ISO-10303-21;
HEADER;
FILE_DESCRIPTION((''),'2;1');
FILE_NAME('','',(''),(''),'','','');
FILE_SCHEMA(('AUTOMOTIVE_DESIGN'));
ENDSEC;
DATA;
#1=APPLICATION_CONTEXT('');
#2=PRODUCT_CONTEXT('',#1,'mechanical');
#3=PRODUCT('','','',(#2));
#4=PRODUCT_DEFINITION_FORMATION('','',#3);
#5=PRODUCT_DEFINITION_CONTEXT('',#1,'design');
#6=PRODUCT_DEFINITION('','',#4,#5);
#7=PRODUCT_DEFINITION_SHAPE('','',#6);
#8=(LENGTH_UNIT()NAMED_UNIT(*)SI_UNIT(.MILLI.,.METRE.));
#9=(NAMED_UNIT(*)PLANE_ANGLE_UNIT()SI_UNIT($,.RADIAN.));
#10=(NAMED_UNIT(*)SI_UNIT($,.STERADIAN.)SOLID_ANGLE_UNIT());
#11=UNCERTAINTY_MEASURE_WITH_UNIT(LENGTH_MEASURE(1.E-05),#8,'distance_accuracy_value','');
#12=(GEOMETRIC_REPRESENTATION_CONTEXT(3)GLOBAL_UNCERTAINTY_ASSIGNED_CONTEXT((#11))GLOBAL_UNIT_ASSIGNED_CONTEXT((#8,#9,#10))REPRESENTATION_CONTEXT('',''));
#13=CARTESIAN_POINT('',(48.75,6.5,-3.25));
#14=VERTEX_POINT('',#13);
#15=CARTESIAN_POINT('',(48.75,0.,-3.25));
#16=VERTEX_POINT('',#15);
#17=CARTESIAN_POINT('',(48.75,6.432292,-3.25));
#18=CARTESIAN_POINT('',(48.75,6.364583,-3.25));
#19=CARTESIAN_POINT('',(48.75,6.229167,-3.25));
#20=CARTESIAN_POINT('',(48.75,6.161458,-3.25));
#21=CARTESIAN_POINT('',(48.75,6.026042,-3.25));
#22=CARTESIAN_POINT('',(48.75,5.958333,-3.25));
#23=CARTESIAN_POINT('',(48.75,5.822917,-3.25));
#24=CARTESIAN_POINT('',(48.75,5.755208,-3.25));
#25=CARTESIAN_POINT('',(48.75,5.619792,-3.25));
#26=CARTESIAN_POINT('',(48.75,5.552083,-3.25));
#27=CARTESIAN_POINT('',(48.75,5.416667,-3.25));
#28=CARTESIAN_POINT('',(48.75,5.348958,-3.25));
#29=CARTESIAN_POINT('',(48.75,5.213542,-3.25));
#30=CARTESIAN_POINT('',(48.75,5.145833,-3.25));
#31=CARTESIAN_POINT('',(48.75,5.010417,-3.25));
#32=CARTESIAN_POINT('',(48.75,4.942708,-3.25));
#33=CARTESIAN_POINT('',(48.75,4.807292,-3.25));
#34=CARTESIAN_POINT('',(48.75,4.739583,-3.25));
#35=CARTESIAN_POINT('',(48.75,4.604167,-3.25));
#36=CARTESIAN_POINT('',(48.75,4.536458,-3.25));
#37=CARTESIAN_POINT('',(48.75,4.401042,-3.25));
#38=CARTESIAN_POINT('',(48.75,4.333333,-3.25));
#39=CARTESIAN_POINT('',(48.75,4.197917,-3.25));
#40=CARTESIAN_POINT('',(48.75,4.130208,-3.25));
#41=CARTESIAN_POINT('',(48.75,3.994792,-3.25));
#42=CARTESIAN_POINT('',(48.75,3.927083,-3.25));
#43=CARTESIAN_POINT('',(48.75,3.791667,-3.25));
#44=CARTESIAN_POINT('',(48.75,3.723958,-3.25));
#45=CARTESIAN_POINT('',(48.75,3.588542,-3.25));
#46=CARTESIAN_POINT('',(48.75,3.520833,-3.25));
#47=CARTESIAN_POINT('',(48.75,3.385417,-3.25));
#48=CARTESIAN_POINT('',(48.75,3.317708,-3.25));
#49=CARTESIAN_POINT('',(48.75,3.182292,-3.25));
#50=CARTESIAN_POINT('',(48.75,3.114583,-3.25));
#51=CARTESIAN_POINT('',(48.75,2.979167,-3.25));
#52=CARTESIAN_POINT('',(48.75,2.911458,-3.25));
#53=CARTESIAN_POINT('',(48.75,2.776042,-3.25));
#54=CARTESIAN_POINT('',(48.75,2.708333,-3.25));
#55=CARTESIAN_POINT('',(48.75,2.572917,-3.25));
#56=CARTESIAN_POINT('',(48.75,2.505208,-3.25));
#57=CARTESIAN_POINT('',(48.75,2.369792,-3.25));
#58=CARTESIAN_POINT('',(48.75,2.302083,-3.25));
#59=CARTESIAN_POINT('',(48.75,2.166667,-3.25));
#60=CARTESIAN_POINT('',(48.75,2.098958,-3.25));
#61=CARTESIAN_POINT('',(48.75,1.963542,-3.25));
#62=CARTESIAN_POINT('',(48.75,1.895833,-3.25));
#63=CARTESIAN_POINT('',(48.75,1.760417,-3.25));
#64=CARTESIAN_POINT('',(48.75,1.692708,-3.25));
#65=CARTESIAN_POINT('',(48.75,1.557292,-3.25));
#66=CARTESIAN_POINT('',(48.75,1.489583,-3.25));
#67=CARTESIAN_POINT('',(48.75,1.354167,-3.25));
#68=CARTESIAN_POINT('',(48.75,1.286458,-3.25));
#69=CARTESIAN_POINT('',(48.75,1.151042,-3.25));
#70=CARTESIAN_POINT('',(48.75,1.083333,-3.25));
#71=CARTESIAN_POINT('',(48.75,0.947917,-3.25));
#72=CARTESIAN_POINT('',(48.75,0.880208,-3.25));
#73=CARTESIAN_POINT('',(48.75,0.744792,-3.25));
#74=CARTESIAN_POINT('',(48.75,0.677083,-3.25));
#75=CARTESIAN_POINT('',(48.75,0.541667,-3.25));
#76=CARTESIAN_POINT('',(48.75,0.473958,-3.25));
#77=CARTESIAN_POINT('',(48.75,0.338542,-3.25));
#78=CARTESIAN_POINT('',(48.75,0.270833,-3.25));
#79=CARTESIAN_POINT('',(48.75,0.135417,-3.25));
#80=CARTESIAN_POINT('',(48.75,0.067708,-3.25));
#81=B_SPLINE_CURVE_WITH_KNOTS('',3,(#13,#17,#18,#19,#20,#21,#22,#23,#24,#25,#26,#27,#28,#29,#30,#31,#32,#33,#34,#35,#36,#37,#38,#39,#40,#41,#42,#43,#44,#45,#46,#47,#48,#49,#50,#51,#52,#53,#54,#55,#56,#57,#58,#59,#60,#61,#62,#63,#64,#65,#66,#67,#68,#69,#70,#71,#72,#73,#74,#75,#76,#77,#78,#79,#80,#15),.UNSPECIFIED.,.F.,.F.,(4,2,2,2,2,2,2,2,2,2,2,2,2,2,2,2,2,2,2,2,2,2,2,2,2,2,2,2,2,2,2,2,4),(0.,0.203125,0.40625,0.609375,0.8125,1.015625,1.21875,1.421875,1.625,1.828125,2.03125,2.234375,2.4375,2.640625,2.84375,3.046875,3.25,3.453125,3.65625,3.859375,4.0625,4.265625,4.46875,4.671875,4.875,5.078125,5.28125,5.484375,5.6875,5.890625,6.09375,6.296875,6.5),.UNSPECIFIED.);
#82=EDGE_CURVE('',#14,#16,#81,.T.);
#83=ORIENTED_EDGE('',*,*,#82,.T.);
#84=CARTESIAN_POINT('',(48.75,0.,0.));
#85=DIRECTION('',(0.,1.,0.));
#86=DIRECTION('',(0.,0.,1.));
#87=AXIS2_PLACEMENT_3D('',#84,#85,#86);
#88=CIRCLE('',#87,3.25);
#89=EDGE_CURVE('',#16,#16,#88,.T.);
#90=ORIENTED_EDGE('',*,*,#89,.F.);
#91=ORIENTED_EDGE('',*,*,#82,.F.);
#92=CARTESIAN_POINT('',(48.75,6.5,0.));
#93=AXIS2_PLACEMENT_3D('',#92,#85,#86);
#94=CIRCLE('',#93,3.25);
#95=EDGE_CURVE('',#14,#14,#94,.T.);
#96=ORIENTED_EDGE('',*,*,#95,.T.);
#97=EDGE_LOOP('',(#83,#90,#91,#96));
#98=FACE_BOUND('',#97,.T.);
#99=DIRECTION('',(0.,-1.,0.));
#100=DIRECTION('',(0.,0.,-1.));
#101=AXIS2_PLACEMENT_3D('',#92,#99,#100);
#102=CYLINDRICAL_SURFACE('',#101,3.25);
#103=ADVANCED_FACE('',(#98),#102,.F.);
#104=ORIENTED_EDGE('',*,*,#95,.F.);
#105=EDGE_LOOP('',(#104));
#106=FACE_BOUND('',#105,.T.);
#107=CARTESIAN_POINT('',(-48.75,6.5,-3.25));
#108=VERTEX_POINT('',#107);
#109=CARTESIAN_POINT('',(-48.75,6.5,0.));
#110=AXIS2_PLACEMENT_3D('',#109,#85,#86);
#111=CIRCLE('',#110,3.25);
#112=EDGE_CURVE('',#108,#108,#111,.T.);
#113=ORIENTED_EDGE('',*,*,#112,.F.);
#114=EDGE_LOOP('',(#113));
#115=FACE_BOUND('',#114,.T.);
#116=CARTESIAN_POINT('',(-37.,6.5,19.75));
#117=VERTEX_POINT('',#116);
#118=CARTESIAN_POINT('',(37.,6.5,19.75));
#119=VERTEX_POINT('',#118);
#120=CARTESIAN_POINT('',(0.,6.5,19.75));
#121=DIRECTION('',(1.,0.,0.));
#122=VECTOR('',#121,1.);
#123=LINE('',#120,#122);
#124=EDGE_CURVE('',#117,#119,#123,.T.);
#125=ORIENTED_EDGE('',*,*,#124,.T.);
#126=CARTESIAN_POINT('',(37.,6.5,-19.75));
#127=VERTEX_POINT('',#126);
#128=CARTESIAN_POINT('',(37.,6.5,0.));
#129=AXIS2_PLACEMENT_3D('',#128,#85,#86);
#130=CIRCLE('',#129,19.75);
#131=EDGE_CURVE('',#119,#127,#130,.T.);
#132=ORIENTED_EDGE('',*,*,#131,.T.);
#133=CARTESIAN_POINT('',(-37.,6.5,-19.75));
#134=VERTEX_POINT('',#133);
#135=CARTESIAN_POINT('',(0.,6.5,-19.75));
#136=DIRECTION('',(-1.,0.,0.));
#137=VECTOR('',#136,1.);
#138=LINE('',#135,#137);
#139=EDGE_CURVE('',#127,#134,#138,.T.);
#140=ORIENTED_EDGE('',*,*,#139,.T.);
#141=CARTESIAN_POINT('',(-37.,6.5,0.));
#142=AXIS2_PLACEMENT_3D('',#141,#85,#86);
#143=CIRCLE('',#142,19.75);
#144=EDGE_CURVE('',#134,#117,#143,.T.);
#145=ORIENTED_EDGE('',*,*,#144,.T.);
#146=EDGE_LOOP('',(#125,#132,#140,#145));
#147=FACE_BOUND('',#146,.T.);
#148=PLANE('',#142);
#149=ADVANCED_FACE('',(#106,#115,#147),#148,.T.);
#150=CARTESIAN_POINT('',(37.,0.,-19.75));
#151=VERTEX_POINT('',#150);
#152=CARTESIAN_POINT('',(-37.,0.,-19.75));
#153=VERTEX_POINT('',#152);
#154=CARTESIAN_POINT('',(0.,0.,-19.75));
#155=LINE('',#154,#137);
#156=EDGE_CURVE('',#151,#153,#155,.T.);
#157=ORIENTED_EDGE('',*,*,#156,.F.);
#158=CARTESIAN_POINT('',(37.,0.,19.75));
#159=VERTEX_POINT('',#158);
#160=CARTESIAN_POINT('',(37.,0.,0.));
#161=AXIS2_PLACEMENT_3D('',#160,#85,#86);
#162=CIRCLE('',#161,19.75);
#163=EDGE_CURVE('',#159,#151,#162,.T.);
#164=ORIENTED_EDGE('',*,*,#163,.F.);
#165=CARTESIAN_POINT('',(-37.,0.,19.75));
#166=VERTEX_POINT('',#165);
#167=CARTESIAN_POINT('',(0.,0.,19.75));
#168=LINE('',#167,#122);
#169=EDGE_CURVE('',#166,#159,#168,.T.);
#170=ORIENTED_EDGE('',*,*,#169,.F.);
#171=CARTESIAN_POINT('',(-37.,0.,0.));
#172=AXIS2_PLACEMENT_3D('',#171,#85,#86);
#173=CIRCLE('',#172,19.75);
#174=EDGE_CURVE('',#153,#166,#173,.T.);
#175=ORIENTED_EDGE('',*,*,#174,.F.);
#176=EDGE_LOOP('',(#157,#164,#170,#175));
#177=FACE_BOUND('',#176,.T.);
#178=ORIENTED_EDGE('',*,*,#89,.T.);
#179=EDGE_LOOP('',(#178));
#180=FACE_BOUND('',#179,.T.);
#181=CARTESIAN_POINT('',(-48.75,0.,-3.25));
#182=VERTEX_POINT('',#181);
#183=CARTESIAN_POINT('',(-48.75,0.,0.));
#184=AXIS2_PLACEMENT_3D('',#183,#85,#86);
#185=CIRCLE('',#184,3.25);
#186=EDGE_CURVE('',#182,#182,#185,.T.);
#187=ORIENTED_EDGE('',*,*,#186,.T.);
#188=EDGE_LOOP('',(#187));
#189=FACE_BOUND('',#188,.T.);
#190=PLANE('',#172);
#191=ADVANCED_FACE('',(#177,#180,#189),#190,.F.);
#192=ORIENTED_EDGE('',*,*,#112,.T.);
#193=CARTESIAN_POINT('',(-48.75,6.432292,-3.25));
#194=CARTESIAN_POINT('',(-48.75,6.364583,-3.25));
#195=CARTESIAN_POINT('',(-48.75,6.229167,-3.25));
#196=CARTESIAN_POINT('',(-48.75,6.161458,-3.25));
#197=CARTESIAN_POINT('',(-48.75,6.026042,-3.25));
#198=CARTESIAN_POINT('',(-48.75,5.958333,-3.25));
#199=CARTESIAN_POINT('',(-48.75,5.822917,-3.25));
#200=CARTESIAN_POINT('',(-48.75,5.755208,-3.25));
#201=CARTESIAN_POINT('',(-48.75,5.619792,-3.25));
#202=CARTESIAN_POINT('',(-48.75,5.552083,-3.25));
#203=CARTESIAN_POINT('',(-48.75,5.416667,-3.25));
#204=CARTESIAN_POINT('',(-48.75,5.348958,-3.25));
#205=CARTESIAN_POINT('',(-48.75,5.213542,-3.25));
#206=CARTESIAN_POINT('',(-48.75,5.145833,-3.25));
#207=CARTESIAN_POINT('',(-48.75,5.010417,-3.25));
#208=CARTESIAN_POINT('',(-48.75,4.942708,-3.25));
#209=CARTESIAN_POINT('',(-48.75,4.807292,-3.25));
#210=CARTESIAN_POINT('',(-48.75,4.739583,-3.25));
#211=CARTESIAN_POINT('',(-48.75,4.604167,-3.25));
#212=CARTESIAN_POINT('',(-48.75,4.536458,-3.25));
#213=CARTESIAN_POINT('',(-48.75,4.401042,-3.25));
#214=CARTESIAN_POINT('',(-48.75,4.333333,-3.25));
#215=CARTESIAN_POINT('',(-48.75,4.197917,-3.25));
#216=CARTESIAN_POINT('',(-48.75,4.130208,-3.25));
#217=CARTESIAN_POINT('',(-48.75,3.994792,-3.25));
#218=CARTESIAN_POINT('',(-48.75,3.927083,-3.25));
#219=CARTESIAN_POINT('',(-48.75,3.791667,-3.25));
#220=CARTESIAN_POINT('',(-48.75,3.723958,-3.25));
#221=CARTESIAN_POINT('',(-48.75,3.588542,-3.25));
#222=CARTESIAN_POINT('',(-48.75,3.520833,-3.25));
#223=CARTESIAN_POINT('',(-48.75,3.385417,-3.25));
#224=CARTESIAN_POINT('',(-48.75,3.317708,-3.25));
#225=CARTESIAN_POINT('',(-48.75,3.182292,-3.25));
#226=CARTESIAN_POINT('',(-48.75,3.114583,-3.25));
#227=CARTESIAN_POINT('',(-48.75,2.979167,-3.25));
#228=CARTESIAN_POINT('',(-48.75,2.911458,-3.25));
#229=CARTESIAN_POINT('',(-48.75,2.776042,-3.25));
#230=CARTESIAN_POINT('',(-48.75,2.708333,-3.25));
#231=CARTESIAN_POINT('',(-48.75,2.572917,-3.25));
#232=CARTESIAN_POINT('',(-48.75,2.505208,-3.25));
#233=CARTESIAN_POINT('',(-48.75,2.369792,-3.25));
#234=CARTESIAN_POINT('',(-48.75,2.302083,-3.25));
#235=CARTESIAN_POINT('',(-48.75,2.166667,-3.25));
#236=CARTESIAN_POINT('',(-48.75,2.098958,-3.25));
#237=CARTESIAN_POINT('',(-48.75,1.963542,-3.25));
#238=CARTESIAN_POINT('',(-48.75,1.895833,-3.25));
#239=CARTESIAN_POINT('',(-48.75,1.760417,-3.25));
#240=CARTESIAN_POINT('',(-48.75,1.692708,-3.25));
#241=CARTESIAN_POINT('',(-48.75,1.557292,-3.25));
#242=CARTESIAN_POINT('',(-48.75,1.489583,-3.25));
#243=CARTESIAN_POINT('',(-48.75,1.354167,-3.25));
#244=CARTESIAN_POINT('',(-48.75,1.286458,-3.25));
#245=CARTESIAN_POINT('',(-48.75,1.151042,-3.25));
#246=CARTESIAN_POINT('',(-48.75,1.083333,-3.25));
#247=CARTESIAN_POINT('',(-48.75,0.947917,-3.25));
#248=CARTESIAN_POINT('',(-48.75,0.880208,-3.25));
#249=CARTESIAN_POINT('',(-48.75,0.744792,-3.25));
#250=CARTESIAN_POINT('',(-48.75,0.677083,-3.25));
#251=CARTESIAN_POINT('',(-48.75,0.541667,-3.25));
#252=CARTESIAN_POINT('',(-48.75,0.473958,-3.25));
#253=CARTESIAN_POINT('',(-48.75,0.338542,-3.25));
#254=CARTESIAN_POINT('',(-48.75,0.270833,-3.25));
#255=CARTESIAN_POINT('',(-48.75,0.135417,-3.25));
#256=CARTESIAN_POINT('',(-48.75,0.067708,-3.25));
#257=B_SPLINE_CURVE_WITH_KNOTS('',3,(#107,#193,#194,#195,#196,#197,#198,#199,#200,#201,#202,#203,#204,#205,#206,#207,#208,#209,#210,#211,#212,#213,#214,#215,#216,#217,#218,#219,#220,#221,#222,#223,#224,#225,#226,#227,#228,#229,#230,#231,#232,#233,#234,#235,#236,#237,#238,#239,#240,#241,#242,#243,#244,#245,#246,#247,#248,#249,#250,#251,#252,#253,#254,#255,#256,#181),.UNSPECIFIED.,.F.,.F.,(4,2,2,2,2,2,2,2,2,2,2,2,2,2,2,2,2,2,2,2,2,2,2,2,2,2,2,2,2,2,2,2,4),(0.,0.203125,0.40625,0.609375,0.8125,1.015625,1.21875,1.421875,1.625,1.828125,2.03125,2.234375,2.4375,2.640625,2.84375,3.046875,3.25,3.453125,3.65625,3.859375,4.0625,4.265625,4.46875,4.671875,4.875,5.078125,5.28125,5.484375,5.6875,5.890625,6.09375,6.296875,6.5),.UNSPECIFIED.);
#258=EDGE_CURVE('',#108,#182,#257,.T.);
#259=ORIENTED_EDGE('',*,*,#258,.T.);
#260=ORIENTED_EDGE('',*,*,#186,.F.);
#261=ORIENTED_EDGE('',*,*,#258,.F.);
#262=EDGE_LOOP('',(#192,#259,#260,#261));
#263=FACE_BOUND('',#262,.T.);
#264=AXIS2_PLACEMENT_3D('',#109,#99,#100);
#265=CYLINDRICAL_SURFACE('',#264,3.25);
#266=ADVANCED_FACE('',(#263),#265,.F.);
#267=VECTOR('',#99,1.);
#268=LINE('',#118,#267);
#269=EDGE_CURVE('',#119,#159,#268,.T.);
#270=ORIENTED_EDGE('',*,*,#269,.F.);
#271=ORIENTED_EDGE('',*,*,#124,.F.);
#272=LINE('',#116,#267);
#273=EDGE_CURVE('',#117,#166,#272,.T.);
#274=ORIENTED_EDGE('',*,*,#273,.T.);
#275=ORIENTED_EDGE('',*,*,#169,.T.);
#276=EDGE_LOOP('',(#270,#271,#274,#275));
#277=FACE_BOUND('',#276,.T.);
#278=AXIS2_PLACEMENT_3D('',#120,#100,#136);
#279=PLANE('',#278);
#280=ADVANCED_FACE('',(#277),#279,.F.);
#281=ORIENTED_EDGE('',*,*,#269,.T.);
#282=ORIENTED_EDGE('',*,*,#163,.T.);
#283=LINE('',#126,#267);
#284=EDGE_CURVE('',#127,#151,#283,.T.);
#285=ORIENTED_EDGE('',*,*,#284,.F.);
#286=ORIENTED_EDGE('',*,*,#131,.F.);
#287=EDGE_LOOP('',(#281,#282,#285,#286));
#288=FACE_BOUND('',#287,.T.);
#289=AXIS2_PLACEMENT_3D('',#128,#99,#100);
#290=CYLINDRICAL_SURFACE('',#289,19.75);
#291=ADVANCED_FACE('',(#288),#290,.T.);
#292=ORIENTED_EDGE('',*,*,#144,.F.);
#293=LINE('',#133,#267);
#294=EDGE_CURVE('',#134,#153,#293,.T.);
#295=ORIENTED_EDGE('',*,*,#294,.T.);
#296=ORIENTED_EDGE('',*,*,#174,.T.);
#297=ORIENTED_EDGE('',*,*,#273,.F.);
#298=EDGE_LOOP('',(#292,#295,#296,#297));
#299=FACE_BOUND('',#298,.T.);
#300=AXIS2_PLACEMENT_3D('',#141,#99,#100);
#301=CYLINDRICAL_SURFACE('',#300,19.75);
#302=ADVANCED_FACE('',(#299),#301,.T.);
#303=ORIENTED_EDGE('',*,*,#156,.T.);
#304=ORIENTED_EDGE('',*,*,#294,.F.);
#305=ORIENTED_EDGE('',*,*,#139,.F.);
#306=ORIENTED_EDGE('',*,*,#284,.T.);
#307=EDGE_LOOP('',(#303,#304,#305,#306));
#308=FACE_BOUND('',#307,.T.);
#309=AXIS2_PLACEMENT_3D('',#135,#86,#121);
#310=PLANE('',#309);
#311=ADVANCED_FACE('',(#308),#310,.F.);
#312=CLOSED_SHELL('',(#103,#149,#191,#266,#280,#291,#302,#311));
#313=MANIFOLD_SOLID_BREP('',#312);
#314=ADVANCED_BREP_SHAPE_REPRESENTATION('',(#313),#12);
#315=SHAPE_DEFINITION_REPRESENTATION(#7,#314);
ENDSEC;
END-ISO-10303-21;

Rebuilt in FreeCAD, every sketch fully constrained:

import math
import FreeCAD as App
import Part
import Sketcher
from FreeCAD import Vector
Q = App.Units.Quantity

doc = App.newDocument("Part")
body = doc.addObject("PartDesign::Body", "Body")

# Sketch on XZ plane
sketch1 = body.newObject("Sketcher::SketchObject", "Sketch")
sketch1.AttachmentSupport = (doc.getObject("XZ_Plane"), [""])
sketch1.MapMode = "FlatFace"
sketch1.addGeometry([
    Part.ArcOfCircle(Part.Circle(Vector(37, 0, 0), Vector(0, 0, 1), 19.75), math.radians(-90), math.radians(90)),  # 0
    Part.LineSegment(Vector(37, -19.75, 0), Vector(-37, -19.75, 0)),  # 1
    Part.ArcOfCircle(Part.Circle(Vector(-37, 0, 0), Vector(0, 0, 1), 19.75), math.radians(90), math.radians(270)),  # 2
    Part.LineSegment(Vector(-37, 19.75, 0), Vector(37, 19.75, 0)),  # 3
    Part.Circle(Vector(48.75, 0, 0), Vector(0, 0, 1), 3.25),  # 4
    Part.Circle(Vector(-48.75, 0, 0), Vector(0, 0, 1), 3.25),  # 5
], False)
sketch1.addConstraint([
    Sketcher.Constraint("Tangent", 0, 1, 1, 1),
    Sketcher.Constraint("Tangent", 1, 2, 2, 2),
    Sketcher.Constraint("Tangent", 2, 1, 3, 1),
    Sketcher.Constraint("Tangent", 3, 2, 0, 2),
    Sketcher.Constraint("Horizontal", 1),
    Sketcher.Constraint("Horizontal", 3),
    Sketcher.Constraint("Equal", 4, 5),
    Sketcher.Constraint("Symmetric", 0, 3, 2, 3, -1, 1),
    Sketcher.Constraint("Symmetric", 4, 3, 5, 3, -1, 1),
    Sketcher.Constraint("PointOnObject", 4, 3, -1),
    Sketcher.Constraint("Diameter", 4, Q("6.5 mm")),
    Sketcher.Constraint("DistanceX", 1, 2, 1, 1, Q("74 mm")),
    Sketcher.Constraint("Radius", 0, Q("19.75 mm")),
    Sketcher.Constraint("DistanceX", 5, 3, 4, 3, Q("97.5 mm")),
])
pad1 = body.newObject("PartDesign::Pad", "Pad")
pad1.Profile = sketch1
pad1.Length = 6.5
pad1.Reversed = True

doc.recompute()
